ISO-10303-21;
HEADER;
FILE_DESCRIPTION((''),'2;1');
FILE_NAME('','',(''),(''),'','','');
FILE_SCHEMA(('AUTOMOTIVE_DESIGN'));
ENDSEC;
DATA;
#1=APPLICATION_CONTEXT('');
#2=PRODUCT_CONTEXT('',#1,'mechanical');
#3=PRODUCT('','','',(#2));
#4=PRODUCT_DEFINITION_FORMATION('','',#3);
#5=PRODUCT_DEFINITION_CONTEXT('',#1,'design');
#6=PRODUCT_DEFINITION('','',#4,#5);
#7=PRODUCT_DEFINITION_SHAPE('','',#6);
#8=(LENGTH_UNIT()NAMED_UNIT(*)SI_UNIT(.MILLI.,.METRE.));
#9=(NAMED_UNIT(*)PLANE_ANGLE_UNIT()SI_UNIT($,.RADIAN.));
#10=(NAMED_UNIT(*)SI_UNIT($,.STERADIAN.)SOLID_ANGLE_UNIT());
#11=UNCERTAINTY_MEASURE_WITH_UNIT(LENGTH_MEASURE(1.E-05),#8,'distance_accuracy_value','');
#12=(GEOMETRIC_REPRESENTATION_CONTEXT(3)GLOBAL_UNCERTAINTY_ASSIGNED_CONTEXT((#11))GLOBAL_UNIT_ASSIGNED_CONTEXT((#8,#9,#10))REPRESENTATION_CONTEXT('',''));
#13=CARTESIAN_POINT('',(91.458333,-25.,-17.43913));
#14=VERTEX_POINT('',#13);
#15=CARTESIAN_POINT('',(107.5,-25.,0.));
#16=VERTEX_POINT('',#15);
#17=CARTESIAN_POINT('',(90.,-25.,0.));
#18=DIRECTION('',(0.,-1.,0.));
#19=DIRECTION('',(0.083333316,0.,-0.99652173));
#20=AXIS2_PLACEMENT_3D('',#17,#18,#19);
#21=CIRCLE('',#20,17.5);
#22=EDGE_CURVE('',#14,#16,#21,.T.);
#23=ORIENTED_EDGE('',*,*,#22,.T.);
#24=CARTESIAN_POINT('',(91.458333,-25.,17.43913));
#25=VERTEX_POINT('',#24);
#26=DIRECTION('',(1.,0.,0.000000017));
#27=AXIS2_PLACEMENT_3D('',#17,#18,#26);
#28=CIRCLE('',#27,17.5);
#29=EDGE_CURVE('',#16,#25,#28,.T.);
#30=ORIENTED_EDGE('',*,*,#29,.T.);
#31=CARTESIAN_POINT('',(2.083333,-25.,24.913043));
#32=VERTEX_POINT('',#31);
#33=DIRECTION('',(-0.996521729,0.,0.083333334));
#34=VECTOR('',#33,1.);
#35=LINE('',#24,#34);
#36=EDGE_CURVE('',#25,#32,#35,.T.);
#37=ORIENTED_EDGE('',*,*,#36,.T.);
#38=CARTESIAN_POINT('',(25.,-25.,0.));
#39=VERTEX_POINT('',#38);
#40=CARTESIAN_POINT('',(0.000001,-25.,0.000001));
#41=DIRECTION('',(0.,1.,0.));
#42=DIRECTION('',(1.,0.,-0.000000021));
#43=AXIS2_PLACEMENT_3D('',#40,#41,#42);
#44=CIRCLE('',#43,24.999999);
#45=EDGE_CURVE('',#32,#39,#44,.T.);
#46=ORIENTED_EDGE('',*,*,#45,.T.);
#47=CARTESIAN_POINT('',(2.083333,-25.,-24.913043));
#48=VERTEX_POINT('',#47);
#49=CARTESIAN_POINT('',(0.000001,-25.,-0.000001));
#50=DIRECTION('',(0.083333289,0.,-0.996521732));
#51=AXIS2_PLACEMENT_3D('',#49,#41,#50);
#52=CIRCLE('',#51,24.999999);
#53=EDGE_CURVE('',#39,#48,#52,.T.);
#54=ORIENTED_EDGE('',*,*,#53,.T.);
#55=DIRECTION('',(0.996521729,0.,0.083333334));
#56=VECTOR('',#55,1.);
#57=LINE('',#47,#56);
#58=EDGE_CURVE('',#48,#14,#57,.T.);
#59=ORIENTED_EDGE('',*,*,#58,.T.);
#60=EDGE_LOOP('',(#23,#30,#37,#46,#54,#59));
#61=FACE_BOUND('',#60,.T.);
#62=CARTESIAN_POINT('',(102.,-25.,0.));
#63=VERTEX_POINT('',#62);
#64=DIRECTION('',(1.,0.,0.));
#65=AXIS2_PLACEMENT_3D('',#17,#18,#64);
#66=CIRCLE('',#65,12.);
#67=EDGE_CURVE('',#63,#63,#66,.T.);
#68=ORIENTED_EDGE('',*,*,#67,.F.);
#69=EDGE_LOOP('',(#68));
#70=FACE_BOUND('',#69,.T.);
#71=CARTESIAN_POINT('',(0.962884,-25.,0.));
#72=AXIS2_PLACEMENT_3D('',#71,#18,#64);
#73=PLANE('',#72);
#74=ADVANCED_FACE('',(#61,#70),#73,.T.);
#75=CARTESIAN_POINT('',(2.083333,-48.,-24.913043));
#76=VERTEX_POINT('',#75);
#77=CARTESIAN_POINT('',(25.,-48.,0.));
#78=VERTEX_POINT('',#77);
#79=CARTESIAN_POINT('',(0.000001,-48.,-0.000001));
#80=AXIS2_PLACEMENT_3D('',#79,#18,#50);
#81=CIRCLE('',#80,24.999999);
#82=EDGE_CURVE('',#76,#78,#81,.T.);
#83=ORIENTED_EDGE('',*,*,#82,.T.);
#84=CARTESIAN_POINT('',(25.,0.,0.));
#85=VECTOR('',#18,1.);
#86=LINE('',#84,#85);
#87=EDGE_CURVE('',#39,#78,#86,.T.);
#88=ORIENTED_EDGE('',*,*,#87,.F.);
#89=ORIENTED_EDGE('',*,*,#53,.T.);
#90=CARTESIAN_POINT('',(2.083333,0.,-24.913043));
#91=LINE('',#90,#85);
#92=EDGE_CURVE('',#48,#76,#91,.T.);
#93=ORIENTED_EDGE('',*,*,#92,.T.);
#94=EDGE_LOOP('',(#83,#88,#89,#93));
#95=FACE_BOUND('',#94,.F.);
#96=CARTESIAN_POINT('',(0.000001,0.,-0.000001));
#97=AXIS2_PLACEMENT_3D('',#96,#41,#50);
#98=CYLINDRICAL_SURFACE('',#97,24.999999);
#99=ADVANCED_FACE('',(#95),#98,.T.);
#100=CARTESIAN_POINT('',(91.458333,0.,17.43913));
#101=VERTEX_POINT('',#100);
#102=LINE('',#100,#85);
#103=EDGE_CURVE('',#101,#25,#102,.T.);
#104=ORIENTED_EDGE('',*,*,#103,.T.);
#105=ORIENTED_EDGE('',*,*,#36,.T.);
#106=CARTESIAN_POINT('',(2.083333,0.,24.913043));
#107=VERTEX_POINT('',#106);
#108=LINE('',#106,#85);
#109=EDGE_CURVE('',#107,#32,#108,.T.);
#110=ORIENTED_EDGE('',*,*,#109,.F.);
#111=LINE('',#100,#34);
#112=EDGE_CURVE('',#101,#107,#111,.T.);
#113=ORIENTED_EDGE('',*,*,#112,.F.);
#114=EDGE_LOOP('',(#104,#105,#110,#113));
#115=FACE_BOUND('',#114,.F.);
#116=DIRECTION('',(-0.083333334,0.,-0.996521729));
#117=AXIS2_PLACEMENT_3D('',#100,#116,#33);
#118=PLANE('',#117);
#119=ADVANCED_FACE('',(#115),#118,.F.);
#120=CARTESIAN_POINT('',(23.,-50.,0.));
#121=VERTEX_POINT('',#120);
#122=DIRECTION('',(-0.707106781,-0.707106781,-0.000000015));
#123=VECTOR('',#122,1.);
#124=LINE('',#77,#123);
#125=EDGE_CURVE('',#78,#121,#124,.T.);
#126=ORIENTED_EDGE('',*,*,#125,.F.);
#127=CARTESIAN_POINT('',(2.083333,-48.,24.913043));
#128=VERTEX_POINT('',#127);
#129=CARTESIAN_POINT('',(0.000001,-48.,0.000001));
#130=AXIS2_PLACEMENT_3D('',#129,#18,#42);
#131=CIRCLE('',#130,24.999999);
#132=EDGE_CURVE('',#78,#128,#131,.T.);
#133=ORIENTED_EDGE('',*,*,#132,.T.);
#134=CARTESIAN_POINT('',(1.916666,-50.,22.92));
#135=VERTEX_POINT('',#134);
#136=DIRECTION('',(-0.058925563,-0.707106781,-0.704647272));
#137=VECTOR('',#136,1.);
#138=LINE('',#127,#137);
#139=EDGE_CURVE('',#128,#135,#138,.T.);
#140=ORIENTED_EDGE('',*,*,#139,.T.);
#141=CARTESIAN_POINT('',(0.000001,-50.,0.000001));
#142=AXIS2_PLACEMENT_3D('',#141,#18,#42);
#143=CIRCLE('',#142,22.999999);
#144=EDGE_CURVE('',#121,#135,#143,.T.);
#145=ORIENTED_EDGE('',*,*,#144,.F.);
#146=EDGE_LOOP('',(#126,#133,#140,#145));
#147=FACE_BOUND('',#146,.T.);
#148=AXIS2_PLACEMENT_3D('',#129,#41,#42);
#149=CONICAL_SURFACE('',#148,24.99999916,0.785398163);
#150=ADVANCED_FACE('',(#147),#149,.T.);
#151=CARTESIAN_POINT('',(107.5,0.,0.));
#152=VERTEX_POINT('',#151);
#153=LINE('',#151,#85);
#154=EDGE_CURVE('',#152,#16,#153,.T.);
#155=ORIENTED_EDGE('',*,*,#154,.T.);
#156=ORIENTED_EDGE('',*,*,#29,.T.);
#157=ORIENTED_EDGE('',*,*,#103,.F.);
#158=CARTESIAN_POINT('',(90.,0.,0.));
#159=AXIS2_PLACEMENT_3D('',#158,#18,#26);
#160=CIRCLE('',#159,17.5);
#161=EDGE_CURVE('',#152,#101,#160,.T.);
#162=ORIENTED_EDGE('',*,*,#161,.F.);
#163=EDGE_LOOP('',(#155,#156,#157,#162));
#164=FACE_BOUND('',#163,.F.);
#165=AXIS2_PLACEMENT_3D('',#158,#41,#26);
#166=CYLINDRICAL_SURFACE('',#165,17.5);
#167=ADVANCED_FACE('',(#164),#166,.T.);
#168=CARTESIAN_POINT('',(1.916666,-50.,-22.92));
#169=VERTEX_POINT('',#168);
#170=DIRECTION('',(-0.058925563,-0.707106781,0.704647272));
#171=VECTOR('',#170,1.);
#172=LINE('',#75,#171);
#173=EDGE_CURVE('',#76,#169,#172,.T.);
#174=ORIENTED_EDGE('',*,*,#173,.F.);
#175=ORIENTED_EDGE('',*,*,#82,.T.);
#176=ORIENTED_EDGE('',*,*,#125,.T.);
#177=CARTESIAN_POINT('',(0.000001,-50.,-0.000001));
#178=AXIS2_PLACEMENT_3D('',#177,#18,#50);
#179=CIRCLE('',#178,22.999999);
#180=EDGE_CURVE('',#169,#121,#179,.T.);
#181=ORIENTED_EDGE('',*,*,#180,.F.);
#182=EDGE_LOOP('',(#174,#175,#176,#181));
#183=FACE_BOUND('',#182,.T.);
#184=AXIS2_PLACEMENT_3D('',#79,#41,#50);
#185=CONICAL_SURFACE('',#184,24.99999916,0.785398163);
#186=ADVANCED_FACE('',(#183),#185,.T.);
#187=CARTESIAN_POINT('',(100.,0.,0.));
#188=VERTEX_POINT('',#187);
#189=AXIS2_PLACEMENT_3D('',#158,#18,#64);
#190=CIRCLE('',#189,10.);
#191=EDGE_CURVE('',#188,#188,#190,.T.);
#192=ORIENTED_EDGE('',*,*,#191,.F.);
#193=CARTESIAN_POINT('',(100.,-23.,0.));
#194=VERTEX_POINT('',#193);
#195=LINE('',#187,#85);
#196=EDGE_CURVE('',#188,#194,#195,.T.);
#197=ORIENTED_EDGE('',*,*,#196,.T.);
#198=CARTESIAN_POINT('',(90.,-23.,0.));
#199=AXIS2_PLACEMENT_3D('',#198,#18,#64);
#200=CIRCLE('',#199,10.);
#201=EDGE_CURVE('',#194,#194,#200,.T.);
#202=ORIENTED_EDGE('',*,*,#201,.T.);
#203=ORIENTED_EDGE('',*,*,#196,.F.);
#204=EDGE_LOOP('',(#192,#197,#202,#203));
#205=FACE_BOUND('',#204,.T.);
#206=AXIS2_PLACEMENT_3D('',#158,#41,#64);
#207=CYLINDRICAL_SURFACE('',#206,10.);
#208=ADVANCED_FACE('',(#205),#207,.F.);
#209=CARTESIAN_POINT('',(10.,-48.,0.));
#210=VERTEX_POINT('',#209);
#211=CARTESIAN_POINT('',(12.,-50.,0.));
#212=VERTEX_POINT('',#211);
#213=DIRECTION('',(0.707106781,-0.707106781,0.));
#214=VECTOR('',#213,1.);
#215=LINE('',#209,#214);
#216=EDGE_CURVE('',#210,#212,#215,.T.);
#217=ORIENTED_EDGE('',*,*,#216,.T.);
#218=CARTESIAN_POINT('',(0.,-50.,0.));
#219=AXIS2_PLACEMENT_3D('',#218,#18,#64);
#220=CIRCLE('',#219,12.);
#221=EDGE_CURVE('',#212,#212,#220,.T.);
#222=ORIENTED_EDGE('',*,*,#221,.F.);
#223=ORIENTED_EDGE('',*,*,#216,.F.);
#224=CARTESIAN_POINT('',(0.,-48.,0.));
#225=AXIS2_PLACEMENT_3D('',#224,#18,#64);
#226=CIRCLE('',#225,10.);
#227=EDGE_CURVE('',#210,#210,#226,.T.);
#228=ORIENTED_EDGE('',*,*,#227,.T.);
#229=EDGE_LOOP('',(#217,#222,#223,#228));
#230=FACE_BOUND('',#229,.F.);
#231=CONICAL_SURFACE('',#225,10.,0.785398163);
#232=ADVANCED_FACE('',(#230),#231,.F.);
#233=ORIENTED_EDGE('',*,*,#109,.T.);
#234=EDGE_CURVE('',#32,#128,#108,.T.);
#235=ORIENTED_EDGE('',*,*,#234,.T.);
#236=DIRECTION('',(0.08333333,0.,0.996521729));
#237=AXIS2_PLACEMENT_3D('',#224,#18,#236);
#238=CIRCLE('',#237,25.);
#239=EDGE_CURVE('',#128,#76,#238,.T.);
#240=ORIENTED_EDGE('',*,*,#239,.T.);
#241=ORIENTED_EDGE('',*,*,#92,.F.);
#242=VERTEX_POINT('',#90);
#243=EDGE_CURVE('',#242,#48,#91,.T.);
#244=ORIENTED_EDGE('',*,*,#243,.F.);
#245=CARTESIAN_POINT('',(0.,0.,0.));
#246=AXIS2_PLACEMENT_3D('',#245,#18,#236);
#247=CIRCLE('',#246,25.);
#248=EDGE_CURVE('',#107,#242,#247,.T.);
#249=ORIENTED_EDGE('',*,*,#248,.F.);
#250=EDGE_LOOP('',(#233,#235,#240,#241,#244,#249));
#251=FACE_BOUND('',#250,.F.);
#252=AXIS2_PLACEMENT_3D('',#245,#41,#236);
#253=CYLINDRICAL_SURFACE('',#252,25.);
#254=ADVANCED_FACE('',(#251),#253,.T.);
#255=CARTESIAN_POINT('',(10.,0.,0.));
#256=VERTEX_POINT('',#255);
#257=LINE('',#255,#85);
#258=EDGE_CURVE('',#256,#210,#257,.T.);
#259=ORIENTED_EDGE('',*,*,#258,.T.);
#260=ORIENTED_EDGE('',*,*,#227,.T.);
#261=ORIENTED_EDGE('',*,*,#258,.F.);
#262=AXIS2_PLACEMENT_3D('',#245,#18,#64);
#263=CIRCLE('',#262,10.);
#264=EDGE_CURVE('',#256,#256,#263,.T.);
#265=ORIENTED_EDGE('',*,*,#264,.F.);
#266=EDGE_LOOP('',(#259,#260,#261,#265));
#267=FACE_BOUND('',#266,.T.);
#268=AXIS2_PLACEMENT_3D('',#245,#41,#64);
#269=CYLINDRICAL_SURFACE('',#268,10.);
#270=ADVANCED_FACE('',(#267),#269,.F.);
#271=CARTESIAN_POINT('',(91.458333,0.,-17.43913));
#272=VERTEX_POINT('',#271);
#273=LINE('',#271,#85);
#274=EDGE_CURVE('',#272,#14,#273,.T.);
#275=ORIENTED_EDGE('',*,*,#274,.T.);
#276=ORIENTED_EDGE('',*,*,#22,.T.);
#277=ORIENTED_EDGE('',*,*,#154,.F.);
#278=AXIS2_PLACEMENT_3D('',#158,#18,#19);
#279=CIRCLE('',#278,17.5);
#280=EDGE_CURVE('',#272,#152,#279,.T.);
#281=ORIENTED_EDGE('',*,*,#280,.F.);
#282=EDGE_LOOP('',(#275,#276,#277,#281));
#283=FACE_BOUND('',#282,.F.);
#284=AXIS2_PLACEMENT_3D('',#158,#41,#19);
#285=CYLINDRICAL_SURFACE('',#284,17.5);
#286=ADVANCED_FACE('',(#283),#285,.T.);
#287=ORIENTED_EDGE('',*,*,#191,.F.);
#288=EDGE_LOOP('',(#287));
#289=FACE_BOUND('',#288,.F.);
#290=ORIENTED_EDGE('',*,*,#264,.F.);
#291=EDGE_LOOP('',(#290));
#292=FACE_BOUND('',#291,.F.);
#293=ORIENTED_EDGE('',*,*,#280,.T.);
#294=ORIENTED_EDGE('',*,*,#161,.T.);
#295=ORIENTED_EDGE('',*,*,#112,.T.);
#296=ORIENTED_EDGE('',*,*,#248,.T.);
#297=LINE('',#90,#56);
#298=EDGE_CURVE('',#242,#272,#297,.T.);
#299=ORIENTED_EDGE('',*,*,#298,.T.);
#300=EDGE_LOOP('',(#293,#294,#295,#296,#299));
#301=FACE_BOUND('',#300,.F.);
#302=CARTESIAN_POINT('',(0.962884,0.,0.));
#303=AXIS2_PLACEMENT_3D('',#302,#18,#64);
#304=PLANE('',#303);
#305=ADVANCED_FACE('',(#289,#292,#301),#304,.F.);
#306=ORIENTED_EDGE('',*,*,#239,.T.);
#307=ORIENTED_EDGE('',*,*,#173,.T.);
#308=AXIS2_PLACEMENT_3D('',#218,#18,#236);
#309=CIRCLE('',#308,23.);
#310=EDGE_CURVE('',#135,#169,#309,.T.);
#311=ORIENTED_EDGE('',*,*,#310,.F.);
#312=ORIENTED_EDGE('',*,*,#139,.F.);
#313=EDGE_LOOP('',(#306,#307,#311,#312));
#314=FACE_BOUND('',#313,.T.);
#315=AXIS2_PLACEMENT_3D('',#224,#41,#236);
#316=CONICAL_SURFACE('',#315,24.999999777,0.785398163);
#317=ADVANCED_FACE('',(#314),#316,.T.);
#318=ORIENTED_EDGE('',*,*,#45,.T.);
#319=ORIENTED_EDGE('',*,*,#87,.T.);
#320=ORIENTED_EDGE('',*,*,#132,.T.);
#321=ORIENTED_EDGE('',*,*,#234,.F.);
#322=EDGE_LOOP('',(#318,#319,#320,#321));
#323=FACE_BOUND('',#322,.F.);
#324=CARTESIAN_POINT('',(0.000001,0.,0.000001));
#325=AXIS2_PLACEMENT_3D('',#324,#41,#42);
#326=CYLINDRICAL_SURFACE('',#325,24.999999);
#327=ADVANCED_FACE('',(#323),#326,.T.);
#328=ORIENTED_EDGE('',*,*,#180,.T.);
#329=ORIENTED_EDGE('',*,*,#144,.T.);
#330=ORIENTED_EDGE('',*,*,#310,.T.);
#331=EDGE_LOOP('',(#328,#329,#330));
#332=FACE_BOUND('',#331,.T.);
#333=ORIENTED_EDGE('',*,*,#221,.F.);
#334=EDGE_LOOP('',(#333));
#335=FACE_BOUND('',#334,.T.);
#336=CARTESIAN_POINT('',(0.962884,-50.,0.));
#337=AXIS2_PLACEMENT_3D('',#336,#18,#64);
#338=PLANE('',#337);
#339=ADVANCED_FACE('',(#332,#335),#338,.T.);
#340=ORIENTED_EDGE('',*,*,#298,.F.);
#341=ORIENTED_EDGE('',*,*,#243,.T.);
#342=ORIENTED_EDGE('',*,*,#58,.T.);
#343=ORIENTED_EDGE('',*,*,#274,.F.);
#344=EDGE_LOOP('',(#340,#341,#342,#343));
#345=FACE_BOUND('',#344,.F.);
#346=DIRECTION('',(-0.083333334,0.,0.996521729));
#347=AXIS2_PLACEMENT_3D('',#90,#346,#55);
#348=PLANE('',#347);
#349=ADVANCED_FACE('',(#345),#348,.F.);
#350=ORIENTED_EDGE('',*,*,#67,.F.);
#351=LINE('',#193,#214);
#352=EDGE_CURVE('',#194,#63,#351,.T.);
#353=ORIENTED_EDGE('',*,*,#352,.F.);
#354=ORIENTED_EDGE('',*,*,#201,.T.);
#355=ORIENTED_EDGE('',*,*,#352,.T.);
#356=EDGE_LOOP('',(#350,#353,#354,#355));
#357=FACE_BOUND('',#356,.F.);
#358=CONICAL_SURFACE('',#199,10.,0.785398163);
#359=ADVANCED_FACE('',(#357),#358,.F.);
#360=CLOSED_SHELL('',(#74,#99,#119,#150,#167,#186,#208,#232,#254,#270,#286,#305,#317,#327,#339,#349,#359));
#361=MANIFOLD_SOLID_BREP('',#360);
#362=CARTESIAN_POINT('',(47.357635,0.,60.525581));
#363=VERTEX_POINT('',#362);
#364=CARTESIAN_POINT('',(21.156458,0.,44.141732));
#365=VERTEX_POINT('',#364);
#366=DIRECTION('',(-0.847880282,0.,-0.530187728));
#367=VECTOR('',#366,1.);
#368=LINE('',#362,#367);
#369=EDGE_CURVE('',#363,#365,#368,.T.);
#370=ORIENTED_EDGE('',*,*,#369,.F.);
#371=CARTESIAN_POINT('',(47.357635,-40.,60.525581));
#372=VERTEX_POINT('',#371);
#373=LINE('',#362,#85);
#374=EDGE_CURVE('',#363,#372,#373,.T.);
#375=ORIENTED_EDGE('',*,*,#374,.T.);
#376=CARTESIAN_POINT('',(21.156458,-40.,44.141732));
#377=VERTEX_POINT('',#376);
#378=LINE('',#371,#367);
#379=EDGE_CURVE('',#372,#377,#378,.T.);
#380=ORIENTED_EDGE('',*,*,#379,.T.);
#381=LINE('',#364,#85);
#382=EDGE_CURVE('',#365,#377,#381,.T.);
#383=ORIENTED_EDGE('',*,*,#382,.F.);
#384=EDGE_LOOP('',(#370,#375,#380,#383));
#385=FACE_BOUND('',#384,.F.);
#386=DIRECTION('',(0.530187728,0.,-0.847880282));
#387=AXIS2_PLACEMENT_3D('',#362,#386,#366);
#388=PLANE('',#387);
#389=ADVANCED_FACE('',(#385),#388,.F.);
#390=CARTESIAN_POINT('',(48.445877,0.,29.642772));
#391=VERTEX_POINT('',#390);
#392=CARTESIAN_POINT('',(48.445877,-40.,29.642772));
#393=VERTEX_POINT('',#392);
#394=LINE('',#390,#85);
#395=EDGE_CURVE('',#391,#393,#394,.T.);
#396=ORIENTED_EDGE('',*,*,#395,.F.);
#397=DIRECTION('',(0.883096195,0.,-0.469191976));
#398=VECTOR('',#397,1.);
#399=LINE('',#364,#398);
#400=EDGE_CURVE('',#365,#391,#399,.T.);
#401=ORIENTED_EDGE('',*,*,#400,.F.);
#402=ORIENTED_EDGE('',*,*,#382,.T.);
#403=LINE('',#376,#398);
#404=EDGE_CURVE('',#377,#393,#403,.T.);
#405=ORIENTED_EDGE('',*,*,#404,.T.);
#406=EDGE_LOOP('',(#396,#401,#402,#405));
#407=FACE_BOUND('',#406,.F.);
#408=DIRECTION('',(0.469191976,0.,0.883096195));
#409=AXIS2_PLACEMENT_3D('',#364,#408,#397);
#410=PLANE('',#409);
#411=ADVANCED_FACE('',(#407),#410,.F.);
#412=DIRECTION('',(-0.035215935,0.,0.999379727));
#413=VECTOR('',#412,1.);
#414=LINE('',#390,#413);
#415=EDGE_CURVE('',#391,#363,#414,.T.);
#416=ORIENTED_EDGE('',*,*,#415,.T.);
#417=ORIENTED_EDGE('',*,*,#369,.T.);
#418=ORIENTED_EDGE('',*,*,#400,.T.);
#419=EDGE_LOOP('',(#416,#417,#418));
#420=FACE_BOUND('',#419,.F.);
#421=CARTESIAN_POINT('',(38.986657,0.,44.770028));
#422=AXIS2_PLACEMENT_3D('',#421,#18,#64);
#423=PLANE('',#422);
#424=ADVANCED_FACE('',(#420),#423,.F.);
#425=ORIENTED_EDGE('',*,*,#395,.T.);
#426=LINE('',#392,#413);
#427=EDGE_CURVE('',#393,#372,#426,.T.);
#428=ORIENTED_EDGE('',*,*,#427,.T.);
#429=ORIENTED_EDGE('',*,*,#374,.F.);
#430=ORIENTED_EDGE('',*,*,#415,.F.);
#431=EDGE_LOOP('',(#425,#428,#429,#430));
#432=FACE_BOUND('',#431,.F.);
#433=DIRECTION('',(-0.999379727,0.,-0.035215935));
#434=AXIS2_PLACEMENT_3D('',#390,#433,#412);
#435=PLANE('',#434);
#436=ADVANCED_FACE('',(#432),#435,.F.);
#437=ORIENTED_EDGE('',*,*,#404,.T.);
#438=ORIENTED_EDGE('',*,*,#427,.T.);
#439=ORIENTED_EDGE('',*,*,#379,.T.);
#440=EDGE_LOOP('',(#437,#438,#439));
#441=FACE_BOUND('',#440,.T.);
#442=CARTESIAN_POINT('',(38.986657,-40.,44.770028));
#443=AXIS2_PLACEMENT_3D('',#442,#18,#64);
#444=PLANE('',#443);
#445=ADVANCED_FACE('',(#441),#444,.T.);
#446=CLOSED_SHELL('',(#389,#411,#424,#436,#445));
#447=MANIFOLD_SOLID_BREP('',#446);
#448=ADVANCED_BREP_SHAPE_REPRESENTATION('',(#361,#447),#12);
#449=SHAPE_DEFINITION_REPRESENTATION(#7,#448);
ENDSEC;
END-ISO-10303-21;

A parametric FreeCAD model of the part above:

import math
import FreeCAD as App
import Part
import Sketcher

V = App.Vector


def edges_at(feature, points):
    """Names of the edges that pass closest to the given points."""
    edges = feature.Shape.Edges
    near = lambda p: min(range(len(edges)), key=lambda i: edges[i].distToShape(Part.Vertex(*p))[0])
    return sorted({f"Edge{near(p) + 1}" for p in points})

doc = App.newDocument("Part")
body = doc.addObject("PartDesign::Body", "Body")

# Sketch on XZ plane
sketch1 = body.newObject("Sketcher::SketchObject", "Sketch")
sketch1.AttachmentSupport = (doc.getObject("XZ_Plane"), [""])
sketch1.MapMode = "FlatFace"
sketch1.addGeometry([
    Part.ArcOfCircle(Part.Circle(V(0, 0, 0), V(0, 0, 1), 25), math.radians(85), math.radians(275)),  # 0
    Part.LineSegment(V(2, -25, 0), V(91, -17, 0)),  # 1
    Part.ArcOfCircle(Part.Circle(V(90, 0, 0), V(0, 0, 1), 18), math.radians(-85), math.radians(0)),  # 2
    Part.ArcOfCircle(Part.Circle(V(90, 0, 0), V(0, 0, 1), 18), math.radians(0), math.radians(85)),  # 3
    Part.LineSegment(V(91, 17, 0), V(2, 25, 0)),  # 4
    Part.Circle(V(0, 0, 0), V(0, 0, 1), 10),  # 5
    Part.Circle(V(90, 0, 0), V(0, 0, 1), 10),  # 6
], False)
sketch1.addConstraint([
    Sketcher.Constraint("Tangent", 0, 2, 1, 1),
    Sketcher.Constraint("Tangent", 1, 2, 2, 1),
    Sketcher.Constraint("Tangent", 2, 2, 3, 1),
    Sketcher.Constraint("Tangent", 3, 2, 4, 1),
    Sketcher.Constraint("Tangent", 4, 2, 0, 1),
    Sketcher.Constraint("Coincident", 0, 3, -1, 1),
    Sketcher.Constraint("Coincident", 5, 3, -1, 1),
    Sketcher.Constraint("Coincident", 6, 3, 2, 3),
    Sketcher.Constraint("Equal", 2, 3),
    Sketcher.Constraint("Equal", 5, 6),
    Sketcher.Constraint("PointOnObject", 2, 3, -1),
    Sketcher.Constraint("PointOnObject", 2, 2, -1),
    Sketcher.Constraint("Diameter", 5, 20.0),
    Sketcher.Constraint("Radius", 0, 25.0),
    Sketcher.Constraint("Radius", 2, 17.5),
    Sketcher.Constraint("DistanceX", -1, 1, 2, 3, 90.0),
])
pad1 = body.newObject("PartDesign::Pad", "Pad")
pad1.Profile = sketch1
pad1.Length = 25

# Sketch on XZ plane
sketch2 = body.newObject("Sketcher::SketchObject", "Sketch001")
sketch2.AttachmentSupport = (doc.getObject("XZ_Plane"), [""])
sketch2.MapMode = "FlatFace"
sketch2.addGeometry([
    Part.ArcOfCircle(Part.Circle(V(0, 0, 0), V(0, 0, 1), 25), math.radians(-85), math.radians(0)),
    Part.ArcOfCircle(Part.Circle(V(0, 0, 0), V(0, 0, 1), 25), math.radians(0), math.radians(85)),
    Part.ArcOfCircle(Part.Circle(V(0, 0, 0), V(0, 0, 1), 25), math.radians(85), math.radians(275)),
    Part.Circle(V(0, 0, 0), V(0, 0, 1), 10),
], False)
sketch2.addConstraint([
    Sketcher.Constraint("Tangent", 0, 2, 1, 1),
    Sketcher.Constraint("Tangent", 1, 2, 2, 1),
    Sketcher.Constraint("Tangent", 2, 2, 0, 1),
    Sketcher.Constraint("Coincident", 0, 3, -1, 1),
    Sketcher.Constraint("Coincident", 3, 3, -1, 1),
    Sketcher.Constraint("PointOnObject", 0, 2, -1),
    Sketcher.Constraint("Vertical", 1, 2, 2, 2),
    Sketcher.Constraint("Diameter", 3, 20.0),
    Sketcher.Constraint("Radius", 0, 24.999999),
    Sketcher.Constraint("DistanceX", -1, 1, 1, 2, 2.083333),
])
pad2 = body.newObject("PartDesign::Pad", "Pad001")
pad2.Profile = sketch2
pad2.Length = 50
doc.recompute()

chamfer = body.newObject("PartDesign::Chamfer", "Chamfer")
chamfer.Base = (pad2, edges_at(pad2, [(-25, -50, 0), (-10, -50, 0), (80, -25, 0)]))
chamfer.Size = 2
body2 = doc.addObject("PartDesign::Body", "Body001")

# Sketch on XZ plane
sketch3 = body2.newObject("Sketcher::SketchObject", "Sketch002")
sketch3.AttachmentSupport = (doc.getObject("XZ_Plane001"), [""])
sketch3.MapMode = "FlatFace"
sketch3.addGeometry([
    Part.LineSegment(V(21, 44, 0), V(48, 30, 0)),
    Part.LineSegment(V(48, 30, 0), V(47, 61, 0)),
    Part.LineSegment(V(47, 61, 0), V(21, 44, 0)),
], False)
sketch3.addConstraint([
    Sketcher.Constraint("Coincident", 0, 2, 1, 1),
    Sketcher.Constraint("Coincident", 1, 2, 2, 1),
    Sketcher.Constraint("Coincident", 2, 2, 0, 1),
    Sketcher.Constraint("Equal", 0, 1),
    Sketcher.Constraint("Equal", 1, 2),
    Sketcher.Constraint("DistanceY", -1, 1, 1, 2, 60.525581),
    Sketcher.Constraint("DistanceX", -1, 1, 2, 2, 21.156458),
    Sketcher.Constraint("DistanceY", -1, 1, 2, 2, 44.141732),
    Sketcher.Constraint("DistanceY", 0, 2, 1, 2, 30.882809),
])
pad3 = body2.newObject("PartDesign::Pad", "Pad002")
pad3.Profile = sketch3
pad3.Length = 40

doc.recompute()
